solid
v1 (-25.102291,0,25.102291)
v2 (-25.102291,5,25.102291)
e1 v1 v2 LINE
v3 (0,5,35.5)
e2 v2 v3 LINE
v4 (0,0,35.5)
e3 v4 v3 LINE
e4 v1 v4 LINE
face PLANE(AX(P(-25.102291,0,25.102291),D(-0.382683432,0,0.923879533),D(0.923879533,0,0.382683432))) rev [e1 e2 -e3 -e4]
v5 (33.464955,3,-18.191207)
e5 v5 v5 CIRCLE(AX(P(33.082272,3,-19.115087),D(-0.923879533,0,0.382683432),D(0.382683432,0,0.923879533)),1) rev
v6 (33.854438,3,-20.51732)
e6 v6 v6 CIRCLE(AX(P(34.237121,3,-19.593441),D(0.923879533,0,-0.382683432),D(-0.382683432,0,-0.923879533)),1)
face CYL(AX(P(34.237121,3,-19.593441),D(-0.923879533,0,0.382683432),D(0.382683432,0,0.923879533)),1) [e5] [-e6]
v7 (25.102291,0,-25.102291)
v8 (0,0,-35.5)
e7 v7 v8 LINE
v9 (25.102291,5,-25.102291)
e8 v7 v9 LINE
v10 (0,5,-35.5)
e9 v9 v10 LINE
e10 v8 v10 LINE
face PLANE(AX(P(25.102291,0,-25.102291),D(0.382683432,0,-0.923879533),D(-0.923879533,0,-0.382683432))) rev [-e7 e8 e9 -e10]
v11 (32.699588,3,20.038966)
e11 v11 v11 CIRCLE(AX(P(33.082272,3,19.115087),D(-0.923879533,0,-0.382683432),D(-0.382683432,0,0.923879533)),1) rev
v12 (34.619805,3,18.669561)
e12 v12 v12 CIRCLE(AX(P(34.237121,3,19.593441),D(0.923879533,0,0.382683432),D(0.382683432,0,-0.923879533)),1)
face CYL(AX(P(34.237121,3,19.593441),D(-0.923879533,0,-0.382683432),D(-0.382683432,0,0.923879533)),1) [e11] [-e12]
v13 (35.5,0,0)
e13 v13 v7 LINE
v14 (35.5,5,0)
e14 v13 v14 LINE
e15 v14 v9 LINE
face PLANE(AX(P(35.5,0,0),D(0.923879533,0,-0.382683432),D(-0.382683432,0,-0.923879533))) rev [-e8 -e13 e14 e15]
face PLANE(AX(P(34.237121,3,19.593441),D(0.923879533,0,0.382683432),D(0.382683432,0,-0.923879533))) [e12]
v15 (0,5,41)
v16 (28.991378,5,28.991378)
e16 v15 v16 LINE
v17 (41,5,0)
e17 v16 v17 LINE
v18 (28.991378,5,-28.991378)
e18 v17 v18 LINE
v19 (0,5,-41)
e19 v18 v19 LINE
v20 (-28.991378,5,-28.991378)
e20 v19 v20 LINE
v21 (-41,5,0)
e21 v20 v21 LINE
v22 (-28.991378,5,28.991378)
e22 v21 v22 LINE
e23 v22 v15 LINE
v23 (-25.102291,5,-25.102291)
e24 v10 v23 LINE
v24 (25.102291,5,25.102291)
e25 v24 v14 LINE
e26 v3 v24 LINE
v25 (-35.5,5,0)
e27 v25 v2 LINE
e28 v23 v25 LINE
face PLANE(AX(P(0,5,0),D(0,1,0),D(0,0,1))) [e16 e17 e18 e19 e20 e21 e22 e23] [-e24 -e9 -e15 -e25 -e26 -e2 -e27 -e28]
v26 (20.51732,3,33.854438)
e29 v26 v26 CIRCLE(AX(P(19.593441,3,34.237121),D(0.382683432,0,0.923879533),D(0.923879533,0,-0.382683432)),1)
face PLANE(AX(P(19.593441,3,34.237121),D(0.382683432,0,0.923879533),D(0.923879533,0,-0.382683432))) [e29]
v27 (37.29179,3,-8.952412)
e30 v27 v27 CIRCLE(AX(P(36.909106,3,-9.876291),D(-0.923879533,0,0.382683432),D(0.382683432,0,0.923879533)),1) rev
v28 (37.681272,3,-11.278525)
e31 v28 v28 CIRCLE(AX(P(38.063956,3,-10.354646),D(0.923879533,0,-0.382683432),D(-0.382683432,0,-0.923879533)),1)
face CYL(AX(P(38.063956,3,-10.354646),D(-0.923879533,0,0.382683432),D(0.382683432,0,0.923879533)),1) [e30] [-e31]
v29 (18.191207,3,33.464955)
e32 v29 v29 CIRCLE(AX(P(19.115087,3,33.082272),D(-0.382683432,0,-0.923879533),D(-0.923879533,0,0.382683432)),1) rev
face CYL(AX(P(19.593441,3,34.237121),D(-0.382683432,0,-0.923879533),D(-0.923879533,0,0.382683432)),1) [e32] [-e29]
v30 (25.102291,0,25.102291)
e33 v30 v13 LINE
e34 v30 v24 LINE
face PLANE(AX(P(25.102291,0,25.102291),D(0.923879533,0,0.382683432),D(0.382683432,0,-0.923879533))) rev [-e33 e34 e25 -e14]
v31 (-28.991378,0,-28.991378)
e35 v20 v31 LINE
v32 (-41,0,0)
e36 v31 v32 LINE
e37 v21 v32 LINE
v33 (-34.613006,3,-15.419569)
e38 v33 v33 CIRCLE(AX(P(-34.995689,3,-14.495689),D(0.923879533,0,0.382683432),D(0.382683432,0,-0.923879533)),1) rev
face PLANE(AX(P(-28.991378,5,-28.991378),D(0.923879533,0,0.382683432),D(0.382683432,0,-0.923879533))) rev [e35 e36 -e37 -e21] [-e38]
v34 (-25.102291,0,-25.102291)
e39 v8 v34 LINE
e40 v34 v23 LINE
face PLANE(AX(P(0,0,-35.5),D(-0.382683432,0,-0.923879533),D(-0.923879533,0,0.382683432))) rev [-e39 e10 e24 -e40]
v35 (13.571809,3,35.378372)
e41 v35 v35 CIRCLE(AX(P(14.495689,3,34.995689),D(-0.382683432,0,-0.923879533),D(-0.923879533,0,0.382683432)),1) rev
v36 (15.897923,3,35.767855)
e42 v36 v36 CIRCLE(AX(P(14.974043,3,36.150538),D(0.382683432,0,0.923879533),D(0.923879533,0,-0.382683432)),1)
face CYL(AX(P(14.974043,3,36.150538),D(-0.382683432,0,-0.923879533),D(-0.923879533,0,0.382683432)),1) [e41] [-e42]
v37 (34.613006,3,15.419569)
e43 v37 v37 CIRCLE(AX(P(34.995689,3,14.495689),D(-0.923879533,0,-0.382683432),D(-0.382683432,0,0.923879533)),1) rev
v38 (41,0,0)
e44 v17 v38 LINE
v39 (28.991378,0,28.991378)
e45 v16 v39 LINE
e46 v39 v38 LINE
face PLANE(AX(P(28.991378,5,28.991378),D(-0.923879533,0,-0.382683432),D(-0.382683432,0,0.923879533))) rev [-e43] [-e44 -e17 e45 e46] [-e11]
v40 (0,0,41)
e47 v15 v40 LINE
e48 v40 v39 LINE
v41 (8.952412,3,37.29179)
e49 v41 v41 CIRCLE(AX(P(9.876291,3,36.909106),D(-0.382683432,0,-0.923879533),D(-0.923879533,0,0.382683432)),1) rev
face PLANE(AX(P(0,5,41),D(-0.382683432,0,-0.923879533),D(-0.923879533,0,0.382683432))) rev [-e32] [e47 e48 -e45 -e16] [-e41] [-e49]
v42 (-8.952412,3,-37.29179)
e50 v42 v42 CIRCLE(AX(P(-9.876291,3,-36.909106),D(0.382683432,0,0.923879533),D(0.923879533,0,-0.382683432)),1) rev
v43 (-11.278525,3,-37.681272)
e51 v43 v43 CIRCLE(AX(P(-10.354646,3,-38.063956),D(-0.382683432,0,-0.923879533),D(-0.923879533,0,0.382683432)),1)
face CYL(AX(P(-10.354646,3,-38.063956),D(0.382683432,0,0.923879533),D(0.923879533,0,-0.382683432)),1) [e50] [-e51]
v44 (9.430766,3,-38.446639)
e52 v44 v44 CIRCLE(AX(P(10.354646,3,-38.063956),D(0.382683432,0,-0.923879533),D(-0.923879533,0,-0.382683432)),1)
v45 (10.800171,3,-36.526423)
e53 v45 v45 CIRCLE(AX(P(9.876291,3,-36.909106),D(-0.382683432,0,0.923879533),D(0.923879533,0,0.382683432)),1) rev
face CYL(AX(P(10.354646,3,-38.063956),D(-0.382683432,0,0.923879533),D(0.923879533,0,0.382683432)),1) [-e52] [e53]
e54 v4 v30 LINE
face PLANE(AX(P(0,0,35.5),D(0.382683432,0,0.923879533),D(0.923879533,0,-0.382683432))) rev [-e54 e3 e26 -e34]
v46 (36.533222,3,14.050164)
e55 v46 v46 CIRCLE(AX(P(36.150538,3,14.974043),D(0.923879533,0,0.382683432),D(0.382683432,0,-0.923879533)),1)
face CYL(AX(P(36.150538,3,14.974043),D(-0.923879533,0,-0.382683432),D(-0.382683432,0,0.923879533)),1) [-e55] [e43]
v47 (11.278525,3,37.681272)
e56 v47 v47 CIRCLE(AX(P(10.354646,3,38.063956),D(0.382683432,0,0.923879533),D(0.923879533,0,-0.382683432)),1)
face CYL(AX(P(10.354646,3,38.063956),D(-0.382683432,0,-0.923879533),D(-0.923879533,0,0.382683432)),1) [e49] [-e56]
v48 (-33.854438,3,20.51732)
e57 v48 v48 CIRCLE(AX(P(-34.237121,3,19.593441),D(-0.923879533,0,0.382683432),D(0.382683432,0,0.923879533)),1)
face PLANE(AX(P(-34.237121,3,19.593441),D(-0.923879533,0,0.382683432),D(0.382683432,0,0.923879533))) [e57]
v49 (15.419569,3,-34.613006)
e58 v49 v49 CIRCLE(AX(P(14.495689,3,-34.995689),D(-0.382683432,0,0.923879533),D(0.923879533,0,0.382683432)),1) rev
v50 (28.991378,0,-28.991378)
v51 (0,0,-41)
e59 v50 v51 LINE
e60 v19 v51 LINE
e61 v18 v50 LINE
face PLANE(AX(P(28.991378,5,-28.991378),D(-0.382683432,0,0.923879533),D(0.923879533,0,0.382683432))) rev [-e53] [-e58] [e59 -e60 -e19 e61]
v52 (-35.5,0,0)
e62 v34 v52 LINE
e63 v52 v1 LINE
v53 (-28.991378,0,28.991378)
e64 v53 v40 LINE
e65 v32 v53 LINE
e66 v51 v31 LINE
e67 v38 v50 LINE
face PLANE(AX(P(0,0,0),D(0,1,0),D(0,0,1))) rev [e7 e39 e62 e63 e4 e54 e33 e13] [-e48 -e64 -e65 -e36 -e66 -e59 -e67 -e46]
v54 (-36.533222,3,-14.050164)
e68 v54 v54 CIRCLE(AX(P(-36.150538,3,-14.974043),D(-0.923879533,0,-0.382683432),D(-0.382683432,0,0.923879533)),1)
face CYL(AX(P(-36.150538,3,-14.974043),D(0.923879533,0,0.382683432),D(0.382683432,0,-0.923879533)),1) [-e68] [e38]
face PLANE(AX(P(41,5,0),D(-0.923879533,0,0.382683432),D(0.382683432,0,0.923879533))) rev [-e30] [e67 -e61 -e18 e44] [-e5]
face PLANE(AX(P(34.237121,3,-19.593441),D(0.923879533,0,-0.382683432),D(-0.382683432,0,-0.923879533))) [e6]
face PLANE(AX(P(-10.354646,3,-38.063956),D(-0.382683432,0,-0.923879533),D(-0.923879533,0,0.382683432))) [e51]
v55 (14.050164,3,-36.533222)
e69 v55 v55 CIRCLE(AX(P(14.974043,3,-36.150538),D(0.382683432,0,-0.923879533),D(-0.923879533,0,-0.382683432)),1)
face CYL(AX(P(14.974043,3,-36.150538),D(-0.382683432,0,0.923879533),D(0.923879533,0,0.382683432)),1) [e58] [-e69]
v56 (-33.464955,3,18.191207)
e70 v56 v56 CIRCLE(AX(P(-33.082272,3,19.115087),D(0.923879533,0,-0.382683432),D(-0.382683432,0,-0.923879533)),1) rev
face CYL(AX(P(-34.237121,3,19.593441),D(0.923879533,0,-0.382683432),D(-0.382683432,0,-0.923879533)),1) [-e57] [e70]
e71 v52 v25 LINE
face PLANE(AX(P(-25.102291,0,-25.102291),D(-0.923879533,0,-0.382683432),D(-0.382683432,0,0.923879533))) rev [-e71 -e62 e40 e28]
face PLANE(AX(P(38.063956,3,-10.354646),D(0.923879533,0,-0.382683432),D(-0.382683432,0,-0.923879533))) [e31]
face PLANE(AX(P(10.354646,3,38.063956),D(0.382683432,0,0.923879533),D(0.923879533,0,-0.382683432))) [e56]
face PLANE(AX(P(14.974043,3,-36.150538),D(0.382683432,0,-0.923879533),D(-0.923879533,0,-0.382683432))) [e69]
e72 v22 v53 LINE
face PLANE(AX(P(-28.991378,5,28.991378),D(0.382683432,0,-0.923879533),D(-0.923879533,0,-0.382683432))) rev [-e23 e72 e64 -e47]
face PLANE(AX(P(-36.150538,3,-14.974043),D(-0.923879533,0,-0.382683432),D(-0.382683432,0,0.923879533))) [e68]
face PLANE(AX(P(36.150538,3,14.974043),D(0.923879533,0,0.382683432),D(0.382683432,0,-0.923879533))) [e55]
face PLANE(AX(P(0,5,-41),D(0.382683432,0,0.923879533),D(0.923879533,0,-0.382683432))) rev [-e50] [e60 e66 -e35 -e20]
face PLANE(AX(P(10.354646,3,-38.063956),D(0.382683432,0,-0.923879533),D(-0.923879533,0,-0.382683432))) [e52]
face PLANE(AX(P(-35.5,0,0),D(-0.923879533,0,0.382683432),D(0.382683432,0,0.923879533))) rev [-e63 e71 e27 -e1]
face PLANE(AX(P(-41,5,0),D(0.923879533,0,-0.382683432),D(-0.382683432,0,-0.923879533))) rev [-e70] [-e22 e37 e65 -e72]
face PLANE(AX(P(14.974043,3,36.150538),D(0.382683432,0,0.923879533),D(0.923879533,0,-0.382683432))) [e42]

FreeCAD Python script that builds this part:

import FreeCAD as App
import Part
import Sketcher
Q = App.Units.Quantity


def add_polygon(sketch, points):
    """Adds a closed chain of lines whose ends are joined by coincident constraints."""
    first, n = sketch.GeometryCount, len(points)
    for a, b in zip(points, points[1:] + points[:1]):
        sketch.addGeometry(Part.LineSegment(App.Vector(*a, 0), App.Vector(*b, 0)), False)
    for i in range(n):
        sketch.addConstraint(Sketcher.Constraint("Coincident", first + i, 2, first + (i + 1) % n, 1))

doc = App.newDocument("Part")
body = doc.addObject("PartDesign::Body", "Body")

# Sketch on XZ plane
sketch1 = body.newObject("Sketcher::SketchObject", "Sketch")
sketch1.AttachmentSupport = (doc.getObject("XZ_Plane"), [""])
sketch1.MapMode = "FlatFace"
add_polygon(sketch1, [(41, 0), (29, -29), (0, -41), (-29, -29), (-41, 0), (-29, 29), (0, 41), (29, 29)])  # lines 0-7
sketch1.addConstraint([
    Sketcher.Constraint("Symmetric", 0, 2, 4, 2, -1, 1),
    Sketcher.Constraint("Symmetric", 1, 2, 5, 2, -1, 1),
    Sketcher.Constraint("Symmetric", 2, 2, 6, 2, -1, 1),
    Sketcher.Constraint("Symmetric", 3, 2, 7, 2, -1, 1),
    Sketcher.Constraint("Symmetric", 0, 2, 2, 2, -2),
    Sketcher.Constraint("PointOnObject", 1, 2, -2),
    Sketcher.Constraint("PointOnObject", 3, 2, -1),
    Sketcher.Constraint("Perpendicular", 0, 2),
    Sketcher.Constraint("Equal", 0, 1),
    Sketcher.Constraint("DistanceY", 1, 2, -1, 1, Q("41 mm")),
    Sketcher.Constraint("Angle", 0, Q("-112.5 deg")),
])
pad1 = body.newObject("PartDesign::Pad", "Pad")
pad1.Profile = sketch1
pad1.Length = 5
pad1.Reversed = True

# Sketch on XZ plane
sketch2 = body.newObject("Sketcher::SketchObject", "Sketch001")
sketch2.AttachmentSupport = (doc.getObject("XZ_Plane"), [""])
sketch2.MapMode = "FlatFace"
sketch2.AttachmentOffset = App.Placement(App.Vector(0, 0, -5), App.Rotation())
add_polygon(sketch2, [(36, 0), (25, -25), (0, -36), (-25, -25), (-36, 0), (-25, 25), (0, 36), (25, 25)])  # lines 0-7
sketch2.addConstraint([
    Sketcher.Constraint("Symmetric", 0, 2, 4, 2, -1, 1),
    Sketcher.Constraint("Symmetric", 1, 2, 5, 2, -1, 1),
    Sketcher.Constraint("Symmetric", 2, 2, 6, 2, -1, 1),
    Sketcher.Constraint("Symmetric", 3, 2, 7, 2, -1, 1),
    Sketcher.Constraint("Symmetric", 0, 2, 2, 2, -2),
    Sketcher.Constraint("PointOnObject", 1, 2, -2),
    Sketcher.Constraint("PointOnObject", 3, 2, -1),
    Sketcher.Constraint("Perpendicular", 0, 2),
    Sketcher.Constraint("Equal", 0, 1),
    Sketcher.Constraint("Angle", 0, Q("-112.5 deg")),
    Sketcher.Constraint("DistanceY", 1, 2, 5, 2, Q("71 mm")),
])
pocket1 = body.newObject("PartDesign::Pocket", "Pocket")
pocket1.Profile = sketch2
pocket1.Length = 5
pocket1.Reversed = True

# Sketch on an angled plane
sketch3 = body.newObject("Sketcher::SketchObject", "Sketch002")
sketch3.Placement = App.Placement(App.Vector(14.495689, 0, 34.995689), App.Rotation(App.Vector(0.923879533, 0, -0.382683432), App.Vector(0, 1.000000001, 0), App.Vector(0.382683432, 0, 0.923879533), "ZXY"))
sketch3.addGeometry([
    Part.Circle(App.Vector(0, 3, 0), App.Vector(0, 0, 1), 1),
    Part.Circle(App.Vector(-5, 3, 0), App.Vector(0, 0, 1), 1),
    Part.Circle(App.Vector(5, 3, 0), App.Vector(0, 0, 1), 1),
], False)
sketch3.addConstraint([
    Sketcher.Constraint("Equal", 0, 1),
    Sketcher.Constraint("Equal", 1, 2),
    Sketcher.Constraint("Symmetric", 1, 3, 2, 3, -2),
    Sketcher.Constraint("PointOnObject", 0, 3, -2),
    Sketcher.Constraint("Horizontal", 0, 3, 1, 3),
    Sketcher.Constraint("Diameter", 0, Q("2 mm")),
    Sketcher.Constraint("DistanceY", -1, 1, 0, 3, Q("3 mm")),
    Sketcher.Constraint("DistanceX", 1, 3, -1, 1, Q("5 mm")),
])
pad2 = body.newObject("PartDesign::Pad", "Pad001")
pad2.Profile = sketch3
pad2.Length = 1.25

# Sketch on an angled plane
sketch4 = body.newObject("Sketcher::SketchObject", "Sketch003")
sketch4.Placement = App.Placement(App.Vector(-34.995689, 0, 14.495689), App.Rotation(App.Vector(0.382683432, 0, 0.923879533), App.Vector(0, 1.000000001, 0), App.Vector(-0.923879533, 0, 0.382683432), "ZXY"))
sketch4.addGeometry(Part.Circle(App.Vector(5, 3, 0), App.Vector(0, 0, 1), 1), False)
sketch4.addConstraint([
    Sketcher.Constraint("Diameter", 0, Q("2 mm")),
    Sketcher.Constraint("DistanceX", -1, 1, 0, 3, Q("5 mm")),
    Sketcher.Constraint("DistanceY", -1, 1, 0, 3, Q("3 mm")),
])
pad3 = body.newObject("PartDesign::Pad", "Pad002")
pad3.Profile = sketch4
pad3.Length = 1.25

# Sketch on an angled plane
sketch5 = body.newObject("Sketcher::SketchObject", "Sketch004")
sketch5.Placement = App.Placement(App.Vector(-34.995689, 0, -14.495689), App.Rotation(App.Vector(-0.382683432, 0, 0.923879533), App.Vector(0, 1.000000001, 0), App.Vector(-0.923879533, 0, -0.382683432), "ZXY"))
sketch5.addGeometry(Part.Circle(App.Vector(0, 3, 0), App.Vector(0, 0, 1), 1), False)
sketch5.addConstraint([
    Sketcher.Constraint("PointOnObject", 0, 3, -2),
    Sketcher.Constraint("Diameter", 0, Q("2 mm")),
    Sketcher.Constraint("DistanceY", -1, 1, 0, 3, Q("3 mm")),
])
pad4 = body.newObject("PartDesign::Pad", "Pad003")
pad4.Profile = sketch5
pad4.Length = 1.25

# Sketch on an angled plane
sketch6 = body.newObject("Sketcher::SketchObject", "Sketch005")
sketch6.Placement = App.Placement(App.Vector(-14.974043, 0, -36.150538), App.Rotation(App.Vector(-0.923879533, 0, 0.382683432), App.Vector(0, 1.000000001, 0), App.Vector(-0.382683432, 0, -0.923879533), "ZXY"))
sketch6.addGeometry(Part.Circle(App.Vector(-5, 3, 0), App.Vector(0, 0, 1), 1), False)
sketch6.addConstraint([
    Sketcher.Constraint("Diameter", 0, Q("2 mm")),
    Sketcher.Constraint("DistanceX", 0, 3, -1, 1, Q("5 mm")),
    Sketcher.Constraint("DistanceY", -1, 1, 0, 3, Q("3 mm")),
])
pad5 = body.newObject("PartDesign::Pad", "Pad004")
pad5.Profile = sketch6
pad5.Length = 1.25
pad5.Reversed = True

# Sketch on an angled plane
sketch7 = body.newObject("Sketcher::SketchObject", "Sketch006")
sketch7.Placement = App.Placement(App.Vector(14.495689, 0, -34.995689), App.Rotation(App.Vector(-0.923879533, 0, -0.382683432), App.Vector(0, 1.000000001, 0), App.Vector(0.382683432, 0, -0.923879533), "ZXY"))
sketch7.addGeometry([
    Part.Circle(App.Vector(0, 3, 0), App.Vector(0, 0, 1), 1),
    Part.Circle(App.Vector(5, 3, 0), App.Vector(0, 0, 1), 1),
], False)
sketch7.addConstraint([
    Sketcher.Constraint("Equal", 0, 1),
    Sketcher.Constraint("PointOnObject", 0, 3, -2),
    Sketcher.Constraint("Horizontal", 0, 3, 1, 3),
    Sketcher.Constraint("Diameter", 0, Q("2 mm")),
    Sketcher.Constraint("DistanceY", -1, 1, 0, 3, Q("3 mm")),
    Sketcher.Constraint("DistanceX", -1, 1, 1, 3, Q("5 mm")),
])
pad6 = body.newObject("PartDesign::Pad", "Pad005")
pad6.Profile = sketch7
pad6.Length = 1.25

# Sketch on an angled plane
sketch8 = body.newObject("Sketcher::SketchObject", "Sketch007")
sketch8.Placement = App.Placement(App.Vector(36.150538, 0, -14.974043), App.Rotation(App.Vector(-0.382683432, 0, -0.923879533), App.Vector(0, 1.000000001, 0), App.Vector(0.923879533, 0, -0.382683432), "ZXY"))
sketch8.addGeometry([
    Part.Circle(App.Vector(5, 3, 0), App.Vector(0, 0, 1), 1),
    Part.Circle(App.Vector(-5, 3, 0), App.Vector(0, 0, 1), 1),
], False)
sketch8.addConstraint([
    Sketcher.Constraint("Equal", 0, 1),
    Sketcher.Constraint("Symmetric", 0, 3, 1, 3, -2),
    Sketcher.Constraint("Diameter", 0, Q("2 mm")),
    Sketcher.Constraint("DistanceX", -1, 1, 0, 3, Q("5 mm")),
    Sketcher.Constraint("DistanceY", -1, 1, 0, 3, Q("3 mm")),
])
pad7 = body.newObject("PartDesign::Pad", "Pad006")
pad7.Profile = sketch8
pad7.Length = 1.25
pad7.Reversed = True

# Sketch on an angled plane
sketch9 = body.newObject("Sketcher::SketchObject", "Sketch008")
sketch9.Placement = App.Placement(App.Vector(36.150538, 0, 14.974043), App.Rotation(App.Vector(0.382683432, 0, -0.923879533), App.Vector(0, 1.000000001, 0), App.Vector(0.923879533, 0, 0.382683432), "ZXY"))
sketch9.addGeometry([
    Part.Circle(App.Vector(0, 3, 0), App.Vector(0, 0, 1), 1),
    Part.Circle(App.Vector(-5, 3, 0), App.Vector(0, 0, 1), 1),
], False)
sketch9.addConstraint([
    Sketcher.Constraint("Equal", 0, 1),
    Sketcher.Constraint("PointOnObject", 0, 3, -2),
    Sketcher.Constraint("Horizontal", 0, 3, 1, 3),
    Sketcher.Constraint("Diameter", 0, Q("2 mm")),
    Sketcher.Constraint("DistanceY", -1, 1, 0, 3, Q("3 mm")),
    Sketcher.Constraint("DistanceX", 1, 3, -1, 1, Q("5 mm")),
])
pad8 = body.newObject("PartDesign::Pad", "Pad007")
pad8.Profile = sketch9
pad8.Length = 1.25
pad8.Reversed = True

doc.recompute()
